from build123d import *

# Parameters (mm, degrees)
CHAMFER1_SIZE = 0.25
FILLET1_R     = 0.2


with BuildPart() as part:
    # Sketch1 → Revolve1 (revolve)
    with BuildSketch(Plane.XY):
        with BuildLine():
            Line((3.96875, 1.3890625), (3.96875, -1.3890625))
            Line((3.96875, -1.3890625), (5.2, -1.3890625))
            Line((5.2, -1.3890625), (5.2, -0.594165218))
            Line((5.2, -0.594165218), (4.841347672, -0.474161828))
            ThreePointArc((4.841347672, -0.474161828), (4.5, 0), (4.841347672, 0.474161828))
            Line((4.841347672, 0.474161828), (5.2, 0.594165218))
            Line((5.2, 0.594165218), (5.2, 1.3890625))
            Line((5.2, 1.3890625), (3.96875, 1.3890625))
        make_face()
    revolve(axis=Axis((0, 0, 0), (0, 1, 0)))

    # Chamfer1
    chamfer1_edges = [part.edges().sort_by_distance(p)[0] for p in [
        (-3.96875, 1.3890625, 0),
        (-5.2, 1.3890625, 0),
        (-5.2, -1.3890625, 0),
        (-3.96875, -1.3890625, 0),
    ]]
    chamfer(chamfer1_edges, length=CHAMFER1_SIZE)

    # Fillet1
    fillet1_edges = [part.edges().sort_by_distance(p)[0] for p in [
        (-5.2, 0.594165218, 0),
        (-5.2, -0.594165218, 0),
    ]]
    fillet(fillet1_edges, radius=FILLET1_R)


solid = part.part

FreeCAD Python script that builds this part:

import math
import FreeCAD as App
import Part
import Sketcher
Q = App.Units.Quantity


def edges_at(feature, points):
    """Names of the edges that pass closest to the given points."""
    edges = feature.Shape.Edges
    near = lambda p: min(range(len(edges)), key=lambda i: edges[i].distToShape(Part.Vertex(*p))[0])
    return sorted({f"Edge{near(p) + 1}" for p in points})

doc = App.newDocument("Part")
body = doc.addObject("PartDesign::Body", "Body")

# Sketch on XY plane
sketch1 = body.newObject("Sketcher::SketchObject", "Sketch")
sketch1.AttachmentSupport = (doc.getObject("XY_Plane"), [""])
sketch1.MapMode = "FlatFace"
sketch1.addGeometry([
    Part.LineSegment(App.Vector(3.97, 1.39, 0), App.Vector(3.97, -1.39, 0)),  # 0
    Part.LineSegment(App.Vector(3.97, -1.39, 0), App.Vector(5.2, -1.39, 0)),  # 1
    Part.LineSegment(App.Vector(5.2, -1.39, 0), App.Vector(5.2, -0.59, 0)),  # 2
    Part.LineSegment(App.Vector(5.2, -0.59, 0), App.Vector(4.84, -0.47, 0)),  # 3
    Part.ArcOfCircle(Part.Circle(App.Vector(5, 0, 0), App.Vector(0, 0, 1), 0.5), math.radians(108), math.radians(252)),  # 4
    Part.LineSegment(App.Vector(4.84, 0.47, 0), App.Vector(5.2, 0.59, 0)),  # 5
    Part.LineSegment(App.Vector(5.2, 0.59, 0), App.Vector(5.2, 1.39, 0)),  # 6
    Part.LineSegment(App.Vector(5.2, 1.39, 0), App.Vector(3.97, 1.39, 0)),  # 7
], False)
sketch1.addConstraint([
    Sketcher.Constraint("Coincident", 0, 2, 1, 1),
    Sketcher.Constraint("Coincident", 1, 2, 2, 1),
    Sketcher.Constraint("Coincident", 2, 2, 3, 1),
    Sketcher.Constraint("Tangent", 3, 2, 4, 2),
    Sketcher.Constraint("Tangent", 4, 1, 5, 1),
    Sketcher.Constraint("Coincident", 5, 2, 6, 1),
    Sketcher.Constraint("Coincident", 6, 2, 7, 1),
    Sketcher.Constraint("Coincident", 7, 2, 0, 1),
    Sketcher.Constraint("Vertical", 0),
    Sketcher.Constraint("Horizontal", 1),
    Sketcher.Constraint("Vertical", 2),
    Sketcher.Constraint("Vertical", 6),
    Sketcher.Constraint("Horizontal", 7),
    Sketcher.Constraint("Symmetric", 3, 2, 4, 1, -1),
    Sketcher.Constraint("Symmetric", 1, 2, 6, 2, -1),
    Sketcher.Constraint("Radius", 4, Q("0.5 mm")),
    Sketcher.Constraint("DistanceX", -1, 1, 4, 3, Q("5 mm")),
    Sketcher.Constraint("Angle", 3, Q("161.5 deg")),
    Sketcher.Constraint("DistanceX", -1, 1, 1, 2, Q("5.2 mm")),
    Sketcher.Constraint("DistanceX", 1, 1, 1, 2, Q("1.23125 mm")),
    Sketcher.Constraint("DistanceY", 1, 2, 3, 2, Q("0.914901 mm")),
])
revolution = body.newObject("PartDesign::Revolution", "Revolution")
revolution.Profile = sketch1
revolution.ReferenceAxis = (sketch1, ["V_Axis"])
revolution.Angle = 360
doc.recompute()

chamfer = body.newObject("PartDesign::Chamfer", "Chamfer")
chamfer.Base = (revolution, edges_at(revolution, [
    (-3.969, 1.389, 0),
    (-5.2, 1.389, 0),
    (-5.2, -1.389, 0),
    (-3.969, -1.389, 0),
]))
chamfer.Size = 0.25
doc.recompute()

fillet = body.newObject("PartDesign::Fillet", "Fillet")
fillet.Base = (chamfer, edges_at(chamfer, [(-5.2, 0.594, 0), (-5.2, -0.594, 0)]))
fillet.Radius = 0.2

doc.recompute()
